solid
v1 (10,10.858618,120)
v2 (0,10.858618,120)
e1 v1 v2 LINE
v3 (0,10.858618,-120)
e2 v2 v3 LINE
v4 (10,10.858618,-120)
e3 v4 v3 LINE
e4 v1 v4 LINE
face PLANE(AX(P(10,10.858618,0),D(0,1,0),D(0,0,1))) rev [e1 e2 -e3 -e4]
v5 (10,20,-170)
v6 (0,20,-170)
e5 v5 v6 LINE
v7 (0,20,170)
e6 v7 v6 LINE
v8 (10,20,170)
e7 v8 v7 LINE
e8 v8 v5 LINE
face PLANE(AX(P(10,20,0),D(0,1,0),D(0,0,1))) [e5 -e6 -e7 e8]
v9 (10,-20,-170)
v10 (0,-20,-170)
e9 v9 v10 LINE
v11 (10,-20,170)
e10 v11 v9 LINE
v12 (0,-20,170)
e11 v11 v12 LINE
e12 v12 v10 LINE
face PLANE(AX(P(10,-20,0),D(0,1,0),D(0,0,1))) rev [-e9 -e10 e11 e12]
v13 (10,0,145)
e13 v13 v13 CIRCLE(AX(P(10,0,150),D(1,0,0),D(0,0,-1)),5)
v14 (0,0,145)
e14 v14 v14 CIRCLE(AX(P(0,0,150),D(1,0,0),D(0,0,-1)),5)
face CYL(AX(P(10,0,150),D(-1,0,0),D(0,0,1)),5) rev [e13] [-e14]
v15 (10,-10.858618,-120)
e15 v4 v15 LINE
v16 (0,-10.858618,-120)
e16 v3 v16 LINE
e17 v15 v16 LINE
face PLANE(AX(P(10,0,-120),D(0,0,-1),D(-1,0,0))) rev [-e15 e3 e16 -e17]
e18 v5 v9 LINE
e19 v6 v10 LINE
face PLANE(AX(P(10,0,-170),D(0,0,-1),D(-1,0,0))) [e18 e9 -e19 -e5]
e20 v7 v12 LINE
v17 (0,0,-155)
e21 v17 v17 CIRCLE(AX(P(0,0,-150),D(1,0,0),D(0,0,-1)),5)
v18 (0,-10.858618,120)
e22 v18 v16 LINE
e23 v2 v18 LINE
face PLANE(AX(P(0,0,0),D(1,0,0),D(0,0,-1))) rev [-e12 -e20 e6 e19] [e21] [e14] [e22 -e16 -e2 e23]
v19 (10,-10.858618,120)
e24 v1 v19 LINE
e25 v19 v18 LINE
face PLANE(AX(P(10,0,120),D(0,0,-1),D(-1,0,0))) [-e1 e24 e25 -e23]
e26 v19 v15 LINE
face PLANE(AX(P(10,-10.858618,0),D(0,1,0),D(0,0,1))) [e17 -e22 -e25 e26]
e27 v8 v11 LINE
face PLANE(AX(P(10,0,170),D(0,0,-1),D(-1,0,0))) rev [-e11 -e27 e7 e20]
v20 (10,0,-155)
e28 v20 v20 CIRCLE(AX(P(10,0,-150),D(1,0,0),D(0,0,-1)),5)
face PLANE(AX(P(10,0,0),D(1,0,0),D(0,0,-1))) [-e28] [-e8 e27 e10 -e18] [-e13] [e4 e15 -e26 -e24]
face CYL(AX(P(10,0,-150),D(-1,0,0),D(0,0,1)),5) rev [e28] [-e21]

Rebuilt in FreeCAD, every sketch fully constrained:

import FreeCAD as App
import Part
import Sketcher
from FreeCAD import Vector
Q = App.Units.Quantity


def add_polygon(sketch, points):
    """Adds a closed chain of lines whose ends are joined by coincident constraints."""
    first, n = sketch.GeometryCount, len(points)
    for a, b in zip(points, points[1:] + points[:1]):
        sketch.addGeometry(Part.LineSegment(App.Vector(*a, 0), App.Vector(*b, 0)), False)
    for i in range(n):
        sketch.addConstraint(Sketcher.Constraint("Coincident", first + i, 2, first + (i + 1) % n, 1))

doc = App.newDocument("Part")
body = doc.addObject("PartDesign::Body", "Body")

# Sketch on YZ plane
sketch1 = body.newObject("Sketcher::SketchObject", "Sketch")
sketch1.AttachmentSupport = (doc.getObject("YZ_Plane"), [""])
sketch1.MapMode = "FlatFace"
add_polygon(sketch1, [(20, 170), (-20, 170), (-20, -170), (20, -170)])  # lines 0-3
sketch1.addGeometry(Part.Circle(Vector(0, 150, 0), Vector(0, 0, 1), 5), False)  # 4
add_polygon(sketch1, [(-11, -120), (-11, 120), (11, 120), (11, -120)])  # lines 5-8
sketch1.addGeometry(Part.Circle(Vector(0, -150, 0), Vector(0, 0, 1), 5), False)  # 9
sketch1.addConstraint([
    Sketcher.Constraint("Horizontal", 0),
    Sketcher.Constraint("Vertical", 1),
    Sketcher.Constraint("Horizontal", 2),
    Sketcher.Constraint("Vertical", 3),
    Sketcher.Constraint("Vertical", 5),
    Sketcher.Constraint("Horizontal", 6),
    Sketcher.Constraint("Vertical", 7),
    Sketcher.Constraint("Horizontal", 8),
    Sketcher.Constraint("Equal", 4, 9),
    Sketcher.Constraint("Symmetric", 4, 3, 9, 3, -1, 1),
    Sketcher.Constraint("Symmetric", 0, 2, 2, 2, -1, 1),
    Sketcher.Constraint("Symmetric", 5, 2, 7, 2, -1, 1),
    Sketcher.Constraint("PointOnObject", 4, 3, -2),
    Sketcher.Constraint("Diameter", 4, Q("10 mm")),
    Sketcher.Constraint("DistanceX", 0, 2, 0, 1, Q("40 mm")),
    Sketcher.Constraint("DistanceY", 1, 2, 1, 1, Q("340 mm")),
    Sketcher.Constraint("DistanceY", 5, 1, 5, 2, Q("240 mm")),
    Sketcher.Constraint("DistanceY", -1, 1, 4, 3, Q("150 mm")),
    Sketcher.Constraint("DistanceX", 6, 1, 6, 2, Q("21.717236 mm")),
])
pad1 = body.newObject("PartDesign::Pad", "Pad")
pad1.Profile = sketch1
pad1.Length = 10

doc.recompute()
